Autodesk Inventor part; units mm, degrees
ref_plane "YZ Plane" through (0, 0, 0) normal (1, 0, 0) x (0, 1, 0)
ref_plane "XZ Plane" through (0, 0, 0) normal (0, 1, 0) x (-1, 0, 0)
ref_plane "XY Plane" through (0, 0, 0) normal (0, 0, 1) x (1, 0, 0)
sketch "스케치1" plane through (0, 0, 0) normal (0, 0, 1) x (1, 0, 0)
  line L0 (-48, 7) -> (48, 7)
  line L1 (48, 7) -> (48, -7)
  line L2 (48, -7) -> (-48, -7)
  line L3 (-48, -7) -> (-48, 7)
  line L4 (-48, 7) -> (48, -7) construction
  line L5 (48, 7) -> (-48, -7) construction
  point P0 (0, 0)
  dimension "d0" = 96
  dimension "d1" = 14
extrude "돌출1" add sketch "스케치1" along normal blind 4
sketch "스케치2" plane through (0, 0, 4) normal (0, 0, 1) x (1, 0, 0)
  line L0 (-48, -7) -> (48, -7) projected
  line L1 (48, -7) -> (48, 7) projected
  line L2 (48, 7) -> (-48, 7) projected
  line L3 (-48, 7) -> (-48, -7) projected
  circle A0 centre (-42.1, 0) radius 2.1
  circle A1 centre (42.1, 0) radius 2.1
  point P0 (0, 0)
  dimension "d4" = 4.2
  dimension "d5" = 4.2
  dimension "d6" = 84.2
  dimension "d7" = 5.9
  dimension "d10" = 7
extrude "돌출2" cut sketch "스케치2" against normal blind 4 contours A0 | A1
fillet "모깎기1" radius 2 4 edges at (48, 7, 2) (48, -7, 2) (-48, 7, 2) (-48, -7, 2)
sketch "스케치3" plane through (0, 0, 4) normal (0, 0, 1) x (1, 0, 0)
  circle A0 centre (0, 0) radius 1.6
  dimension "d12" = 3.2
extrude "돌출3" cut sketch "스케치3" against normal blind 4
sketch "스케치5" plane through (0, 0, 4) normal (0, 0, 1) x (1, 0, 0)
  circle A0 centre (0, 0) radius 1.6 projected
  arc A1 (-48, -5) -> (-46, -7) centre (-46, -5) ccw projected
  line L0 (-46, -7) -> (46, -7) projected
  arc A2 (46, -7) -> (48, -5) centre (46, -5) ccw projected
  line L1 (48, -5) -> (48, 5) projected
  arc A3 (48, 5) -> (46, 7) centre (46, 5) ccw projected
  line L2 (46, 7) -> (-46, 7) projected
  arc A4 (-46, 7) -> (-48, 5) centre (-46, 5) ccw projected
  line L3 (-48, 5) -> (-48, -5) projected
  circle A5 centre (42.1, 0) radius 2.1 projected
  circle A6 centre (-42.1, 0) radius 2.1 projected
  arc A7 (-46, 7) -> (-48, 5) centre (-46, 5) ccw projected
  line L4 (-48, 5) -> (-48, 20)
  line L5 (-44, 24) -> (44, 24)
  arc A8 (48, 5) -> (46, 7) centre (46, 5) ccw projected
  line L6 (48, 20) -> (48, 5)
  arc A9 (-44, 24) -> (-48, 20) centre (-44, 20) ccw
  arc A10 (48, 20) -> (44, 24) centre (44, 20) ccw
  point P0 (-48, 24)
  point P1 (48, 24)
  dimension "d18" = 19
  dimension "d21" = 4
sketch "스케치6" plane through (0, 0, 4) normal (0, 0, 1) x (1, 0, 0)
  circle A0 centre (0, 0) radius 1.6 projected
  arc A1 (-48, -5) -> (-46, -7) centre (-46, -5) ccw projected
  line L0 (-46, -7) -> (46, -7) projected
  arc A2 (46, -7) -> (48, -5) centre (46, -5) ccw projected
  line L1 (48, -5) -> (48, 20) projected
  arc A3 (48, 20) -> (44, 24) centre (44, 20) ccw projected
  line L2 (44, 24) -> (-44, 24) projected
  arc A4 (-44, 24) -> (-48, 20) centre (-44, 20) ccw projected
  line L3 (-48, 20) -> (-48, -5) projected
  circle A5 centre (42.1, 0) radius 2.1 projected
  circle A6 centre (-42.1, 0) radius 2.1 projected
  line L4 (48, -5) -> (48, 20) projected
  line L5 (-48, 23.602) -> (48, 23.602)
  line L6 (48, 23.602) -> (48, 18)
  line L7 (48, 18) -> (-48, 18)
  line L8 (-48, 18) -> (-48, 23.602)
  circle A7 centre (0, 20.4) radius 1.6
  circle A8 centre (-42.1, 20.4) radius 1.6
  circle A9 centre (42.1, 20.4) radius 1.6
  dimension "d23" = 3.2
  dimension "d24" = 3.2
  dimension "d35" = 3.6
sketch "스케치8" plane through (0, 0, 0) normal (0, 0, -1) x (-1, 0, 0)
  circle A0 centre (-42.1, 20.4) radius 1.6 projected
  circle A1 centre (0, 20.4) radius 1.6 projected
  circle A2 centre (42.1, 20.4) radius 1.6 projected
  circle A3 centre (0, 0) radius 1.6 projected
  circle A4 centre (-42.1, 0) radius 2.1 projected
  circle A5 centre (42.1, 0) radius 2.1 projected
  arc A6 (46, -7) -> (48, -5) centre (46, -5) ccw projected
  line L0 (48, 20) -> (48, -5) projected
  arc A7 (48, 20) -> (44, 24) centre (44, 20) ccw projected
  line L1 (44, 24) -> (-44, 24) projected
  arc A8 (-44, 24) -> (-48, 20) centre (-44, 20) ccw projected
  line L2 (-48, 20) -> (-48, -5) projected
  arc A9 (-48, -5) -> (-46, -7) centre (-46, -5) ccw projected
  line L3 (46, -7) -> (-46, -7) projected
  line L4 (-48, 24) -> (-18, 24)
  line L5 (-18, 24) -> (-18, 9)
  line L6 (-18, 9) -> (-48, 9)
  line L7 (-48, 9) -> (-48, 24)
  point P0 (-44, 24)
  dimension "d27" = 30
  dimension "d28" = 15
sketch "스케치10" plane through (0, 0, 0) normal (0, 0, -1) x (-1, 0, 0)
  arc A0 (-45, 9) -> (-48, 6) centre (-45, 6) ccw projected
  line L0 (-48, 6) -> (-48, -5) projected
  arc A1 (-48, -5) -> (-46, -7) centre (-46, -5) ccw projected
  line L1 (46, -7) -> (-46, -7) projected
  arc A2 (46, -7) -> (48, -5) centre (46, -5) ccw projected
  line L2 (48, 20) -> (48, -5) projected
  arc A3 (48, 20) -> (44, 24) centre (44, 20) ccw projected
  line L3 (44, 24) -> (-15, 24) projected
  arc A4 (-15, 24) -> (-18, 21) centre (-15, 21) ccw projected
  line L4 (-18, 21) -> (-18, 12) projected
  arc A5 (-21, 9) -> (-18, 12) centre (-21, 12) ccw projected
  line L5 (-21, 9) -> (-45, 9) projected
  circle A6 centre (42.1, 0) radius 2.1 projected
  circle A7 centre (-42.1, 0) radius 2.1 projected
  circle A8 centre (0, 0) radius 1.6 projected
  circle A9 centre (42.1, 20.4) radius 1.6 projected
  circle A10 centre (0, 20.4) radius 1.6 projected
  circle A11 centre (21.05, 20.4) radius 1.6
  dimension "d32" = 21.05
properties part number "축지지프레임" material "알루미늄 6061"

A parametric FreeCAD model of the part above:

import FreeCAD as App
import Part
import Sketcher
from FreeCAD import Vector
Q = App.Units.Quantity


def edges_at(feature, points):
    """Names of the edges that pass closest to the given points."""
    edges = feature.Shape.Edges
    near = lambda p: min(range(len(edges)), key=lambda i: edges[i].distToShape(Part.Vertex(*p))[0])
    return sorted({f"Edge{near(p) + 1}" for p in points})


def add_polygon(sketch, points):
    """Adds a closed chain of lines whose ends are joined by coincident constraints."""
    first, n = sketch.GeometryCount, len(points)
    for a, b in zip(points, points[1:] + points[:1]):
        sketch.addGeometry(Part.LineSegment(App.Vector(*a, 0), App.Vector(*b, 0)), False)
    for i in range(n):
        sketch.addConstraint(Sketcher.Constraint("Coincident", first + i, 2, first + (i + 1) % n, 1))

doc = App.newDocument("Part")
body = doc.addObject("PartDesign::Body", "Body")

# Sketch on XY plane
sketch1 = body.newObject("Sketcher::SketchObject", "Sketch")
sketch1.AttachmentSupport = (doc.getObject("XY_Plane"), [""])
sketch1.MapMode = "FlatFace"
add_polygon(sketch1, [(48, 7), (-48, 7), (-48, -7), (48, -7)])  # lines 0-3
sketch1.addConstraint([
    Sketcher.Constraint("Horizontal", 0),
    Sketcher.Constraint("Vertical", 1),
    Sketcher.Constraint("Horizontal", 2),
    Sketcher.Constraint("Vertical", 3),
    Sketcher.Constraint("Symmetric", 0, 2, 2, 2, -1, 1),
    Sketcher.Constraint("DistanceX", 0, 2, 0, 1, Q("96 mm")),
    Sketcher.Constraint("DistanceY", 1, 2, 1, 1, Q("14 mm")),
])
pad1 = body.newObject("PartDesign::Pad", "Pad")
pad1.Profile = sketch1
pad1.Length = 4

# Sketch on XY plane
sketch2 = body.newObject("Sketcher::SketchObject", "Sketch001")
sketch2.AttachmentSupport = (doc.getObject("XY_Plane"), [""])
sketch2.MapMode = "FlatFace"
sketch2.AttachmentOffset = App.Placement(Vector(0, 0, 4), App.Rotation())
sketch2.addGeometry([
    Part.Circle(Vector(-42.1, 0, 0), Vector(0, 0, 1), 2.1),
    Part.Circle(Vector(42.1, 0, 0), Vector(0, 0, 1), 2.1),
], False)
sketch2.addConstraint([
    Sketcher.Constraint("Equal", 0, 1),
    Sketcher.Constraint("Symmetric", 0, 3, 1, 3, -1, 1),
    Sketcher.Constraint("PointOnObject", 0, 3, -1),
    Sketcher.Constraint("Diameter", 0, Q("4.2 mm")),
    Sketcher.Constraint("DistanceX", 0, 3, 1, 3, Q("84.2 mm")),
])
pocket1 = body.newObject("PartDesign::Pocket", "Pocket")
pocket1.Profile = sketch2
pocket1.Length = 4
doc.recompute()

fillet = body.newObject("PartDesign::Fillet", "Fillet")
fillet.Base = (pocket1, edges_at(pocket1, [
    (48, 7, 2),
    (48, -7, 2),
    (-48, 7, 2),
    (-48, -7, 2),
]))
fillet.Radius = 2

# Sketch on XY plane
sketch3 = body.newObject("Sketcher::SketchObject", "Sketch002")
sketch3.AttachmentSupport = (doc.getObject("XY_Plane"), [""])
sketch3.MapMode = "FlatFace"
sketch3.AttachmentOffset = App.Placement(Vector(0, 0, 4), App.Rotation())
sketch3.addGeometry(Part.Circle(Vector(0, 0, 0), Vector(0, 0, 1), 1.6), False)
sketch3.addConstraint([
    Sketcher.Constraint("Coincident", 0, 3, -1, 1),
    Sketcher.Constraint("Diameter", 0, Q("3.2 mm")),
])
pocket2 = body.newObject("PartDesign::Pocket", "Pocket001")
pocket2.Profile = sketch3
pocket2.Length = 4

doc.recompute()
